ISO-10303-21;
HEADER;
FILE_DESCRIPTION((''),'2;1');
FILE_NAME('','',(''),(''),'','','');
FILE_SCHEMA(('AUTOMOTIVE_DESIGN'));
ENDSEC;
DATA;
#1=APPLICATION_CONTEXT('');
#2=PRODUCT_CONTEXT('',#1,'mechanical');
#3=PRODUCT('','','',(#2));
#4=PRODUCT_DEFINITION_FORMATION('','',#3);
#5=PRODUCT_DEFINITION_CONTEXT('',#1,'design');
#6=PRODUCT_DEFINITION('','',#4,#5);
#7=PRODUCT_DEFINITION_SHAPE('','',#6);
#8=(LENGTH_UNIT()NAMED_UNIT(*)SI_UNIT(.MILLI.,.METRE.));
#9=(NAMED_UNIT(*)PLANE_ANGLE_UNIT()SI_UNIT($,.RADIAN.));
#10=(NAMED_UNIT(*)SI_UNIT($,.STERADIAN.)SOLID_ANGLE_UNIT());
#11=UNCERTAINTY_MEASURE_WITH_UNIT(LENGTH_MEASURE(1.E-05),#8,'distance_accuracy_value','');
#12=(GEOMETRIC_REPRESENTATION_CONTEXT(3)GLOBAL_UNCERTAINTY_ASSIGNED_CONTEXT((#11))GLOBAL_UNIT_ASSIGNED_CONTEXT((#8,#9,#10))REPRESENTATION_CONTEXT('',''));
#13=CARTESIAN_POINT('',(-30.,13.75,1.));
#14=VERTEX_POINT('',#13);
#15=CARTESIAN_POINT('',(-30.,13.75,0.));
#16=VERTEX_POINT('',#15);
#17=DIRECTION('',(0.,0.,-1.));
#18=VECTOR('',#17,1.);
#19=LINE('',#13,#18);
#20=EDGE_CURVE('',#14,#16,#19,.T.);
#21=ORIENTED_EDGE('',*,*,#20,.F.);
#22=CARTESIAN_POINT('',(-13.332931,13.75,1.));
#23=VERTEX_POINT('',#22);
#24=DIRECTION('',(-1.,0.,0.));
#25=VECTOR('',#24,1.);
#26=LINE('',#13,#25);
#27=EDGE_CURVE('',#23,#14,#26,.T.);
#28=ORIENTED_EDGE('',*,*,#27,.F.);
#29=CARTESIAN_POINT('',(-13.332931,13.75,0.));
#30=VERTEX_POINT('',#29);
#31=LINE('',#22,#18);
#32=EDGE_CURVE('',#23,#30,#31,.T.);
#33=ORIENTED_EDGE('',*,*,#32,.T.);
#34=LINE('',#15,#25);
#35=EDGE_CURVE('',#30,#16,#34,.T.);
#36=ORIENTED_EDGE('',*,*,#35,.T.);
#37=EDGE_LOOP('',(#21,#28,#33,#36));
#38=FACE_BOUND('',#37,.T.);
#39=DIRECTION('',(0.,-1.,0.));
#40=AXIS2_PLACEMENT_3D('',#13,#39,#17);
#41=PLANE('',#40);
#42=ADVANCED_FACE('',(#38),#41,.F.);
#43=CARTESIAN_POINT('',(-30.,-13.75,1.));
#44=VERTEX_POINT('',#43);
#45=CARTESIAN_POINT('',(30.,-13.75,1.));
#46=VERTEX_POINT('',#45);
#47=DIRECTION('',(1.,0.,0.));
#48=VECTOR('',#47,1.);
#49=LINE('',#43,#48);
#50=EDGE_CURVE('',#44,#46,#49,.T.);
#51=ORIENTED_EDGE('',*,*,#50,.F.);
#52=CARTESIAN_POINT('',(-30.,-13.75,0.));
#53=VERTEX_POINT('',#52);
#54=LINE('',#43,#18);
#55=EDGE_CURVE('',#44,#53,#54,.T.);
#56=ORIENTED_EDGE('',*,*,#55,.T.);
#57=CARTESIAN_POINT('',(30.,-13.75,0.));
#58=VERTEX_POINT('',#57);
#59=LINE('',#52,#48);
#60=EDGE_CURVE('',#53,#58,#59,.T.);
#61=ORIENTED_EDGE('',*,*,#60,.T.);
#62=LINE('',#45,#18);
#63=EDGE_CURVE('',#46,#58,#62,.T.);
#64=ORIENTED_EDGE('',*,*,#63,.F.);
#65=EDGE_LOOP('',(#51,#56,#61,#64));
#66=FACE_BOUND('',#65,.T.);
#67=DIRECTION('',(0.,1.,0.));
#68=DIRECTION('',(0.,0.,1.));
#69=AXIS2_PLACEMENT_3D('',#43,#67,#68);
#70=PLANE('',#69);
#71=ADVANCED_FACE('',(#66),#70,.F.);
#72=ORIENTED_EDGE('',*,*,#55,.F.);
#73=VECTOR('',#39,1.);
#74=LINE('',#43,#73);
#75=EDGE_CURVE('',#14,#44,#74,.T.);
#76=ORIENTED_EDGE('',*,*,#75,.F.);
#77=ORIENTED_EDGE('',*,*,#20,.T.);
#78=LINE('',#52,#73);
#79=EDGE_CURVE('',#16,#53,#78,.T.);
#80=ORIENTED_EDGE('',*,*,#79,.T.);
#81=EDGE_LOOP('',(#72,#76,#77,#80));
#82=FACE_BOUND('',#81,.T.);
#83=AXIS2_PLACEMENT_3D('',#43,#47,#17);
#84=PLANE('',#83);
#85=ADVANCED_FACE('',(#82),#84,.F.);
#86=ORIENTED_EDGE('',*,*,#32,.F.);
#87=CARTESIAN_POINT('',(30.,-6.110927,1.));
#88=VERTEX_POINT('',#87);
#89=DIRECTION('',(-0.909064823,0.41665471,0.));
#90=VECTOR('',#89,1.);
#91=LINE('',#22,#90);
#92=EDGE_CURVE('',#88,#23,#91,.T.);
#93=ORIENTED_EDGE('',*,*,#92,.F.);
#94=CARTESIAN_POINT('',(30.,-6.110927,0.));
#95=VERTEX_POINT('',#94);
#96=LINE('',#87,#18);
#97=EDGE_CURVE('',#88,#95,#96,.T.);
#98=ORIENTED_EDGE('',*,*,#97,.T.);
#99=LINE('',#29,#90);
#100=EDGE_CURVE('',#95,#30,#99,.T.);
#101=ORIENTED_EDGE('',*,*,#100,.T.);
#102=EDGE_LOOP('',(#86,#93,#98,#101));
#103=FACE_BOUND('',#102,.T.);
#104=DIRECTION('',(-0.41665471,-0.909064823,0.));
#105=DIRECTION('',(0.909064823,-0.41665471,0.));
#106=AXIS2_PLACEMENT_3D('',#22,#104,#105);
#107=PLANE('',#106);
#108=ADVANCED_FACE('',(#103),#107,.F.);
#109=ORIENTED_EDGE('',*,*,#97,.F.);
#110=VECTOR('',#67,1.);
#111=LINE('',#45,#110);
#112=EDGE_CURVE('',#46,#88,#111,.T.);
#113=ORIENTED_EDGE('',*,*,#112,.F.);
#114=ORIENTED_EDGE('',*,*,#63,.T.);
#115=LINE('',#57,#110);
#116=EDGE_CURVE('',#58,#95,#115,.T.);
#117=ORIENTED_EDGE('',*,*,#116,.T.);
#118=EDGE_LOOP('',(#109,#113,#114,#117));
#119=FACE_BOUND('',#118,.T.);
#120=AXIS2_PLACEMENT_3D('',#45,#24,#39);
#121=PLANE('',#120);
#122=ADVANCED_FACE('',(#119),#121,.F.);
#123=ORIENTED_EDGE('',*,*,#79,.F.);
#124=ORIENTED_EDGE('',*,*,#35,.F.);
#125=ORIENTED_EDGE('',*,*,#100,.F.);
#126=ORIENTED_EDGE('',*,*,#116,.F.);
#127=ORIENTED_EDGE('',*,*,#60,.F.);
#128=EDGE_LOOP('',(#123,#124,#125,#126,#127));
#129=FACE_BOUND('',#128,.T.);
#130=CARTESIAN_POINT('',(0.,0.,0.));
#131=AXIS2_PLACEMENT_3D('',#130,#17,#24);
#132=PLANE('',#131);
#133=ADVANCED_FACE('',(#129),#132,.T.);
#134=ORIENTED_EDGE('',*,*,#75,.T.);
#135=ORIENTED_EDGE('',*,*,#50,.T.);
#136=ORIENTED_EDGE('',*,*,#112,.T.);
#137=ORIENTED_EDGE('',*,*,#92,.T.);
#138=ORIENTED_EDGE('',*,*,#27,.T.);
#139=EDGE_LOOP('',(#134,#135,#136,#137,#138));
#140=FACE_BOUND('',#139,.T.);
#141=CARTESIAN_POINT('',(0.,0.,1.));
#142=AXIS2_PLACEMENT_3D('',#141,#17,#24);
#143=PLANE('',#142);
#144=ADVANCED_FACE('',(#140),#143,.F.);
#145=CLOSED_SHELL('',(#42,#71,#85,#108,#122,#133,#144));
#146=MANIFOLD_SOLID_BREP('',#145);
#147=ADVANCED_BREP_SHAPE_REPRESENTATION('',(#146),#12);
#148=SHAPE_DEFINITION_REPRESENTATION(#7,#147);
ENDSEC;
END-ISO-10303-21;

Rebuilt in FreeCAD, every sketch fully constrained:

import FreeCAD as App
import Part
import Sketcher

V = App.Vector
Q = App.Units.Quantity


def add_polygon(sketch, points):
    """Adds a closed chain of lines whose ends are joined by coincident constraints."""
    first, n = sketch.GeometryCount, len(points)
    for a, b in zip(points, points[1:] + points[:1]):
        sketch.addGeometry(Part.LineSegment(App.Vector(*a, 0), App.Vector(*b, 0)), False)
    for i in range(n):
        sketch.addConstraint(Sketcher.Constraint("Coincident", first + i, 2, first + (i + 1) % n, 1))

doc = App.newDocument("Part")
body = doc.addObject("PartDesign::Body", "Body")

# Sketch on XY plane
sketch1 = doc.addObject("Sketcher::SketchObject", "Sketch")
body.addObject(sketch1)
sketch1.AttachmentSupport = (doc.XY_Plane, [""])
sketch1.MapMode = "FlatFace"
add_polygon(sketch1, [(30, -6), (-13, 14), (-30, 14), (-30, -14), (30, -14)])  # lines 0-4
sketch1.addConstraint([
    Sketcher.Constraint("Horizontal", 1),
    Sketcher.Constraint("Vertical", 2),
    Sketcher.Constraint("Horizontal", 3),
    Sketcher.Constraint("Vertical", 4),
    Sketcher.Constraint("Symmetric", 1, 2, 3, 2, -1, 1),
    Sketcher.Constraint("DistanceX", 3, 1, 3, 2, Q("60 mm")),
    Sketcher.Constraint("DistanceY", 2, 2, 2, 1, Q("27.5 mm")),
    Sketcher.Constraint("DistanceX", 1, 2, 1, 1, Q("16.667069 mm")),
    Sketcher.Constraint("DistanceY", 4, 1, 4, 2, Q("7.639073 mm")),
])
pad1 = doc.addObject("PartDesign::Pad", "Pad")
body.addObject(pad1)
pad1.Profile = sketch1
pad1.Length = 1

doc.recompute()
